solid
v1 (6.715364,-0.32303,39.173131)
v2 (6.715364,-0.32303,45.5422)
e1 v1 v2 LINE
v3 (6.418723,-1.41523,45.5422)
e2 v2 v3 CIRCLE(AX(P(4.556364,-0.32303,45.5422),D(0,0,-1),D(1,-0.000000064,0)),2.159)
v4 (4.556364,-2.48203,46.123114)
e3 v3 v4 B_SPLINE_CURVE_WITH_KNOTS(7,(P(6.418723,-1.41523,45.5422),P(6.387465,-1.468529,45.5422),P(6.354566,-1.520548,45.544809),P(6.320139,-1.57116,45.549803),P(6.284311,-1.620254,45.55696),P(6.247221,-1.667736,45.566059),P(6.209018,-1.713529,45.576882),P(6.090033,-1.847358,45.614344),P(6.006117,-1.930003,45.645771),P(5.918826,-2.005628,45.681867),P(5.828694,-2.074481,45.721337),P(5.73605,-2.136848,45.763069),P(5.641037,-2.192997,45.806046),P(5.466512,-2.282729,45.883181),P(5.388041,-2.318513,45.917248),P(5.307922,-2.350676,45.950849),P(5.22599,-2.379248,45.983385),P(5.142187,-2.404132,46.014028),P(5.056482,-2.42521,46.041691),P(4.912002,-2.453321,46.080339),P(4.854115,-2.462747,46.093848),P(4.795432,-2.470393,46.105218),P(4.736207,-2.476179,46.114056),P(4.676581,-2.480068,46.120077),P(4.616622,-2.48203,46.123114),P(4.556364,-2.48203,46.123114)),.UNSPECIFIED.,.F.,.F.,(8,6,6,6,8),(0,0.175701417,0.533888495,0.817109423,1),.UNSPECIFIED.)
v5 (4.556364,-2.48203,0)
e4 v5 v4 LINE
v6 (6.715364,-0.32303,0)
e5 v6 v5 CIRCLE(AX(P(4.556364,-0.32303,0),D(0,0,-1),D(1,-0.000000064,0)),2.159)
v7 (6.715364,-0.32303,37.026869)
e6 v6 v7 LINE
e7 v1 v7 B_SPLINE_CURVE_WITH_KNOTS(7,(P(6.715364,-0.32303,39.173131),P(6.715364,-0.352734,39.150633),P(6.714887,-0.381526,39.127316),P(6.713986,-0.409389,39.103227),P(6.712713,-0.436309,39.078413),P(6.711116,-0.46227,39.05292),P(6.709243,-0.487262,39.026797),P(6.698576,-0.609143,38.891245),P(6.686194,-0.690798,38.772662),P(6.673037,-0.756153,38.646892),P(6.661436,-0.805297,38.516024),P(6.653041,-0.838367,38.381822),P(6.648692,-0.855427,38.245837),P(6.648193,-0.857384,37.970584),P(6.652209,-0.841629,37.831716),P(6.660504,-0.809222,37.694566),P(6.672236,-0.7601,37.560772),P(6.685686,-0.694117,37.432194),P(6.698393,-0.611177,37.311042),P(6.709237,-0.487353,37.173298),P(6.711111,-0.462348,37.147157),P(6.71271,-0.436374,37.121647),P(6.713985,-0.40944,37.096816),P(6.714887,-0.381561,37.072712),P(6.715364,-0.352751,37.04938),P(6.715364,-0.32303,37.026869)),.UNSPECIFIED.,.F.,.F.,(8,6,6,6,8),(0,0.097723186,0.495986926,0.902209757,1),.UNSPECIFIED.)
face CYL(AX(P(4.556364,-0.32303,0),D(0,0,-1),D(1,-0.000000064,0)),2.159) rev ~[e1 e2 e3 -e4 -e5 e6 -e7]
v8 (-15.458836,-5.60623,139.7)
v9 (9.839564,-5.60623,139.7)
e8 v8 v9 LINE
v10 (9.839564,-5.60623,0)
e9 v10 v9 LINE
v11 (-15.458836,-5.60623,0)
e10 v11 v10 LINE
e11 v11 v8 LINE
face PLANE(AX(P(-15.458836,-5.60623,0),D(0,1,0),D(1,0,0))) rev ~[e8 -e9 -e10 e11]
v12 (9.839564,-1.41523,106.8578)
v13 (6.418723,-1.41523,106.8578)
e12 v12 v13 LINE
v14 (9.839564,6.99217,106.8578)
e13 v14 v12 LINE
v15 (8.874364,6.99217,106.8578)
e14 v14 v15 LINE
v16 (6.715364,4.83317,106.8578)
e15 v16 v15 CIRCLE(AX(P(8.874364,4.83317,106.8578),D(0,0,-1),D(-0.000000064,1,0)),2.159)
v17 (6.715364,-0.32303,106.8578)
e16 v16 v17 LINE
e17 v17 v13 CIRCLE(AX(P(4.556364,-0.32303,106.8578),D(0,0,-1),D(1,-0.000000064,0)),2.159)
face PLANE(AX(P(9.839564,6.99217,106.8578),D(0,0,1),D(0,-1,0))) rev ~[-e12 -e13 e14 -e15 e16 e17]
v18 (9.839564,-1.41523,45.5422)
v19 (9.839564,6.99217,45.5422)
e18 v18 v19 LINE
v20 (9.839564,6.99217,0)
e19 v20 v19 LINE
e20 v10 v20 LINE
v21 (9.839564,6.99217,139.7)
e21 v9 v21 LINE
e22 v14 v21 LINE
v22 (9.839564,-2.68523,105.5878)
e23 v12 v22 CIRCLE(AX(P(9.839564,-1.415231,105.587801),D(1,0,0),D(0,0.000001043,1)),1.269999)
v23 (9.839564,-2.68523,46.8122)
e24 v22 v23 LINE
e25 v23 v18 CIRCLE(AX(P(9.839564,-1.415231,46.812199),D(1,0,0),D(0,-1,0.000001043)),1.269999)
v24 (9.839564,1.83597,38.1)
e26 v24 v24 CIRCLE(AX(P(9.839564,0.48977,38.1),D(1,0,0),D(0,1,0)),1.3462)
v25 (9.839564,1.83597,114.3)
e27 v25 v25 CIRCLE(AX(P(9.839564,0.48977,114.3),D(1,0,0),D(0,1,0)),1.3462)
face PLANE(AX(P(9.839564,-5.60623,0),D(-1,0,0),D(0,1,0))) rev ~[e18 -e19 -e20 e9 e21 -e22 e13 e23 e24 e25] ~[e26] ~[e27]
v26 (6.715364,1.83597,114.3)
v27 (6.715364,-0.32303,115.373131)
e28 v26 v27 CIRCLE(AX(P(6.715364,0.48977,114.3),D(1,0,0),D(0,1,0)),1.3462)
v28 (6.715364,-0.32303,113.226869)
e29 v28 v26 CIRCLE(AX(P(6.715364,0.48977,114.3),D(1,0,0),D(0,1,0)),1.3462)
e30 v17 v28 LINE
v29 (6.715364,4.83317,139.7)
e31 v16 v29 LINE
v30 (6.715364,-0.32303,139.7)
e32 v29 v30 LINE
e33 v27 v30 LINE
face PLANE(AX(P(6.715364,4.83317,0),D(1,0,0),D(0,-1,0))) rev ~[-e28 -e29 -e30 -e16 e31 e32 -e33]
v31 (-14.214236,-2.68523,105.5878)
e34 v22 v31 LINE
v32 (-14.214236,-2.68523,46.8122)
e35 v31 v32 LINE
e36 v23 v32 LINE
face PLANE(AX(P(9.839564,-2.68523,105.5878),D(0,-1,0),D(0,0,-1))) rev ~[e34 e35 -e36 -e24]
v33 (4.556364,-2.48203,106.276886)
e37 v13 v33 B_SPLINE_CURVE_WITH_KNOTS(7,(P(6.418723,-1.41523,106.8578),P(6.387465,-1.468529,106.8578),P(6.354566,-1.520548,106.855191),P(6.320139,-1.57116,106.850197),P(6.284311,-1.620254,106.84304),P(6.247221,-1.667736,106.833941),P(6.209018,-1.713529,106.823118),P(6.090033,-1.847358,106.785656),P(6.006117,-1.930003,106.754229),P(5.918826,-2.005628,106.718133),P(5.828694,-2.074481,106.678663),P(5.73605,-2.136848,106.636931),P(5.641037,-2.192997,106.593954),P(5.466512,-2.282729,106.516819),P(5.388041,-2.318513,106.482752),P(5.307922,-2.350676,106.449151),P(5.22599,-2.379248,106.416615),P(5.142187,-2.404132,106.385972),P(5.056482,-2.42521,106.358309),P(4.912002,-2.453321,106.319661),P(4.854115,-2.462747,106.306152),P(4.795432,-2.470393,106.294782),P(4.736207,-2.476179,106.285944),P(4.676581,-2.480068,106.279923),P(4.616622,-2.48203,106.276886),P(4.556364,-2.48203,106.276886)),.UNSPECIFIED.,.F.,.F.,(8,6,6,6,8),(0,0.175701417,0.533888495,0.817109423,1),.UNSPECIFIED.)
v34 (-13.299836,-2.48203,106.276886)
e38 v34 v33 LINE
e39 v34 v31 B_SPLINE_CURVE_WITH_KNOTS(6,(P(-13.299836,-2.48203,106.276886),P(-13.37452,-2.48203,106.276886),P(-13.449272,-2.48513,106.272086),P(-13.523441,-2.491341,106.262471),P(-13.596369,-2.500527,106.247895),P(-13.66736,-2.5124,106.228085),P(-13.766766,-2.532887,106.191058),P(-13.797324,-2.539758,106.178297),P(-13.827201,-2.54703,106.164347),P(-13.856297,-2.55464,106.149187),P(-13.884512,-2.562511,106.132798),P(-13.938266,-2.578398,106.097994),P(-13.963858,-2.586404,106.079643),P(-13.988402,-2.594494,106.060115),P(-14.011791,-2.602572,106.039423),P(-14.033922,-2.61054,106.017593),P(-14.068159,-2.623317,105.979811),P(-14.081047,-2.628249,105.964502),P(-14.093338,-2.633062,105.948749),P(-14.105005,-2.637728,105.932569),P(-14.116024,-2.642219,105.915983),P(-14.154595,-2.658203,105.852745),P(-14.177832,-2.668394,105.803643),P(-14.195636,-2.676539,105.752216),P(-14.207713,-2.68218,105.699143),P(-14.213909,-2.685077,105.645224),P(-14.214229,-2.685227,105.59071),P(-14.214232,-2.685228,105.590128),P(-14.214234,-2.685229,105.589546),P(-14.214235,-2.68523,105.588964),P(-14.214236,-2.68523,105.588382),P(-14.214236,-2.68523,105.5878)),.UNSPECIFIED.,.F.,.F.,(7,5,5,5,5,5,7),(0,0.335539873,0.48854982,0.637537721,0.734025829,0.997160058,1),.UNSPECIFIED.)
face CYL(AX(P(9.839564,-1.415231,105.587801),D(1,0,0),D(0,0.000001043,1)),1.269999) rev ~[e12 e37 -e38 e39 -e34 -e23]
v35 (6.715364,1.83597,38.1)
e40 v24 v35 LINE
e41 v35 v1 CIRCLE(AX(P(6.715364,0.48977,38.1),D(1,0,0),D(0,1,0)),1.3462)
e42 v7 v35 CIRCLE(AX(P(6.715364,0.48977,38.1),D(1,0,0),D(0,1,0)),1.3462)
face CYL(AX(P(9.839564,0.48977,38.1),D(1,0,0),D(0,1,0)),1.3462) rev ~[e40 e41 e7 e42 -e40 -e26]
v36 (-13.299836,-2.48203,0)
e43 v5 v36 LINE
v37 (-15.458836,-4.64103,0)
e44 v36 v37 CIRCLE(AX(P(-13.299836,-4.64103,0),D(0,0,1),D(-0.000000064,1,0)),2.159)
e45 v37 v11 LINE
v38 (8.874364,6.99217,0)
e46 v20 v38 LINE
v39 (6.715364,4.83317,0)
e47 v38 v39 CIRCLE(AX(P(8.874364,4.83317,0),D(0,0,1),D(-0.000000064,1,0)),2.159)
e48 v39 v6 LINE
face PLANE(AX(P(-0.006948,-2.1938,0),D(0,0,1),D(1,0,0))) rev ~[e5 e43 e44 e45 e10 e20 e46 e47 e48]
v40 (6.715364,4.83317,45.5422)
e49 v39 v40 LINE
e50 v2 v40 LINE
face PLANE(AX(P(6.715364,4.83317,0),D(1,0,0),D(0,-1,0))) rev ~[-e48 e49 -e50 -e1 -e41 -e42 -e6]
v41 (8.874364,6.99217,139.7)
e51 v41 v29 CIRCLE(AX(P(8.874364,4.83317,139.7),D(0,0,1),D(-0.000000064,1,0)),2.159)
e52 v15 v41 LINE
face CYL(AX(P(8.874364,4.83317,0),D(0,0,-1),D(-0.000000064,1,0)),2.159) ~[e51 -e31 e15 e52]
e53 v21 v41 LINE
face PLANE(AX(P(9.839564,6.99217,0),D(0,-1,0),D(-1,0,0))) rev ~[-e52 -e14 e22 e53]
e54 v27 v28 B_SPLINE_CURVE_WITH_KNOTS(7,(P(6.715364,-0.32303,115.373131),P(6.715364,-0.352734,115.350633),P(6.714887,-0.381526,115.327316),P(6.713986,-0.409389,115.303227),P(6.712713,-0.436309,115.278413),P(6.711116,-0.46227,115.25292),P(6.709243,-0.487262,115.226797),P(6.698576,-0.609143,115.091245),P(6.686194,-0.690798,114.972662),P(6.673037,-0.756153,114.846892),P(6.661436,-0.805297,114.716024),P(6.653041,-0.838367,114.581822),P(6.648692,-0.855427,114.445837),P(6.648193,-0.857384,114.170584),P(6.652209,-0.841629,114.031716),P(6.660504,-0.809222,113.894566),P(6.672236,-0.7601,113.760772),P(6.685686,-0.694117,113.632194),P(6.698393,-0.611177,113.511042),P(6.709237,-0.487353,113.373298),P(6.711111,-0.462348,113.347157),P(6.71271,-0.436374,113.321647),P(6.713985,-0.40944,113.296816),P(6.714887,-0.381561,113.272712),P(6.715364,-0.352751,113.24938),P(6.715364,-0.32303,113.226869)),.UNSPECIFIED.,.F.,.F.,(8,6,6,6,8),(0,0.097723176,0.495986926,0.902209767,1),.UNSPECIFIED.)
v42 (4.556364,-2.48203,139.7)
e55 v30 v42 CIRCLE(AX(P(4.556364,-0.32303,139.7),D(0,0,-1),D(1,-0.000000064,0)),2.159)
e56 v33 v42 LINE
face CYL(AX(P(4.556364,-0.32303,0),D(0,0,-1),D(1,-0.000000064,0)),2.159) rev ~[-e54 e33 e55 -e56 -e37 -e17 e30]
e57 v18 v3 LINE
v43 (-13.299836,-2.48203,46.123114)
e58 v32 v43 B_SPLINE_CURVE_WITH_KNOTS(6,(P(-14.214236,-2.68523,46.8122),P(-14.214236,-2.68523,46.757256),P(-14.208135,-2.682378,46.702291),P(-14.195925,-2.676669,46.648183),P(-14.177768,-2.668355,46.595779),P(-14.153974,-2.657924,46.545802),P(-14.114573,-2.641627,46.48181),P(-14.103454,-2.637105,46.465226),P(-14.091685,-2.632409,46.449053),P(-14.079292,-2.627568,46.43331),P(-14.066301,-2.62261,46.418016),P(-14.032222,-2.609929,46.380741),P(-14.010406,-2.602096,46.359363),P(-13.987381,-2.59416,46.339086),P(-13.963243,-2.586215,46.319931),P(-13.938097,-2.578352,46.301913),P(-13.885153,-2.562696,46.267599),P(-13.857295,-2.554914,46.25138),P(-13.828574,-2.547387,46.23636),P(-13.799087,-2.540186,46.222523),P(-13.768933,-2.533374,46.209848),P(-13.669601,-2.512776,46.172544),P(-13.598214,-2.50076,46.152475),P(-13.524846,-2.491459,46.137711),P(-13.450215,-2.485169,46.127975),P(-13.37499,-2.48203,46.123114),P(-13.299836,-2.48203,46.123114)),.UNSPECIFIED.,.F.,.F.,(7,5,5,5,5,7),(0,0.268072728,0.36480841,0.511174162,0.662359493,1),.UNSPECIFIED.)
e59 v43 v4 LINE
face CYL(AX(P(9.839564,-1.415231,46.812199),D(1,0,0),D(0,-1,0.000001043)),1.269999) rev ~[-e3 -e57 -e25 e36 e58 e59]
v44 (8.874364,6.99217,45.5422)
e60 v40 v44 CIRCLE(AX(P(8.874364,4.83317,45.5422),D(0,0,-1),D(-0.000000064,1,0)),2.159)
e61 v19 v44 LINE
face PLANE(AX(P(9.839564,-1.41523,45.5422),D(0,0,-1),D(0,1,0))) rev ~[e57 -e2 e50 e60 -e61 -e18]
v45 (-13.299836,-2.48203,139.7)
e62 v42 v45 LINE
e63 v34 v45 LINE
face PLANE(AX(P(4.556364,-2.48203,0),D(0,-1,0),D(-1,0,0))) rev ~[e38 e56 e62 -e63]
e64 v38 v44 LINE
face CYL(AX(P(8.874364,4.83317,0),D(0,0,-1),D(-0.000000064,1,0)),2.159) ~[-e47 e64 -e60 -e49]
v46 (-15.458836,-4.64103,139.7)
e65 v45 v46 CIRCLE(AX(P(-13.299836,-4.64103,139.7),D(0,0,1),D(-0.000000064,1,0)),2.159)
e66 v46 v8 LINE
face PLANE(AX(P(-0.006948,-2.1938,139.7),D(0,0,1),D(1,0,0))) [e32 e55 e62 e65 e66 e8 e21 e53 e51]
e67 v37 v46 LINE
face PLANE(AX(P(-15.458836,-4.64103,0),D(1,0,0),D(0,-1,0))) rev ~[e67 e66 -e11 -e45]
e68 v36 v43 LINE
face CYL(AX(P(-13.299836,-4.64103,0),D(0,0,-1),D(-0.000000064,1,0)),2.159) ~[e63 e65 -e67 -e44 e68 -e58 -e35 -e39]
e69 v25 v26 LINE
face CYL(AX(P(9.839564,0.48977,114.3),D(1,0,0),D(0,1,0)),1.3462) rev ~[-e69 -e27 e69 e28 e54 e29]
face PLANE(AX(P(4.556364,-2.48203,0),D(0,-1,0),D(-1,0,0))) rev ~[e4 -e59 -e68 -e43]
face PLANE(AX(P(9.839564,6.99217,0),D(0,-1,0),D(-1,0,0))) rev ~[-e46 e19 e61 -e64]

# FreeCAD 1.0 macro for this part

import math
import FreeCAD as App
import Part
import Sketcher
Q = App.Units.Quantity

doc = App.newDocument("Part")
body = doc.addObject("PartDesign::Body", "Body")

sketch1 = body.newObject("Sketcher::SketchObject", "Sketch")
sketch1.AttachmentSupport = (doc.getObject("XY_Plane"), [""])
sketch1.MapMode = "FlatFace"
sketch1.addGeometry(Part.LineSegment(App.Vector(-15.5, -4.6, 0), App.Vector(-15.5, -5.6, 0)), False)
sketch1.addGeometry(Part.LineSegment(App.Vector(-15.5, -5.6, 0), App.Vector(9.8, -5.6, 0)), False)
sketch1.addGeometry(Part.LineSegment(App.Vector(9.8, -5.6, 0), App.Vector(9.8, 7, 0)), False)
sketch1.addGeometry(Part.LineSegment(App.Vector(9.8, 7, 0), App.Vector(8.9, 7, 0)), False)
sketch1.addGeometry(Part.ArcOfCircle(Part.Circle(App.Vector(8.9, 4.8, 0), App.Vector(0, 0, 1), 2.2), math.radians(90), math.radians(180)), False)
sketch1.addGeometry(Part.LineSegment(App.Vector(6.7, 4.8, 0), App.Vector(6.7, -0.3, 0)), False)
sketch1.addGeometry(Part.ArcOfCircle(Part.Circle(App.Vector(4.6, -0.3, 0), App.Vector(0, 0, 1), 2.2), math.radians(-90), math.radians(0)), False)
sketch1.addGeometry(Part.LineSegment(App.Vector(4.6, -2.5, 0), App.Vector(-13.3, -2.5, 0)), False)
sketch1.addGeometry(Part.ArcOfCircle(Part.Circle(App.Vector(-13.3, -4.6, 0), App.Vector(0, 0, 1), 2.2), math.radians(90), math.radians(180)), False)
sketch1.addConstraint(Sketcher.Constraint("Coincident", 0, 2, 1, 1))
sketch1.addConstraint(Sketcher.Constraint("Coincident", 1, 2, 2, 1))
sketch1.addConstraint(Sketcher.Constraint("Coincident", 2, 2, 3, 1))
sketch1.addConstraint(Sketcher.Constraint("Tangent", 3, 2, 4, 1))
sketch1.addConstraint(Sketcher.Constraint("Tangent", 4, 2, 5, 1))
sketch1.addConstraint(Sketcher.Constraint("Tangent", 5, 2, 6, 2))
sketch1.addConstraint(Sketcher.Constraint("Tangent", 6, 1, 7, 1))
sketch1.addConstraint(Sketcher.Constraint("Tangent", 7, 2, 8, 1))
sketch1.addConstraint(Sketcher.Constraint("Tangent", 8, 2, 0, 1))
sketch1.addConstraint(Sketcher.Constraint("Vertical", 0))
sketch1.addConstraint(Sketcher.Constraint("Horizontal", 1))
sketch1.addConstraint(Sketcher.Constraint("Vertical", 2))
sketch1.addConstraint(Sketcher.Constraint("Horizontal", 3))
sketch1.addConstraint(Sketcher.Constraint("Vertical", 5))
sketch1.addConstraint(Sketcher.Constraint("Horizontal", 7))
sketch1.addConstraint(Sketcher.Constraint("Equal", 4, 6))
sketch1.addConstraint(Sketcher.Constraint("Equal", 6, 8))
sketch1.addConstraint(Sketcher.Constraint("Equal", 3, 0))
sketch1.addConstraint(Sketcher.Constraint("Radius", 4, Q("0.085 in")))
sketch1.addConstraint(Sketcher.Constraint("DistanceX", 1, 1, 1, 2, Q("0.996 in")))
sketch1.addConstraint(Sketcher.Constraint("DistanceX", 3, 2, 3, 1, Q("0.038 in")))
sketch1.addConstraint(Sketcher.Constraint("DistanceY", 2, 1, 2, 2, Q("0.496 in")))
sketch1.addConstraint(Sketcher.Constraint("DistanceY", -1, 1, 4, 3, 4.83317))
sketch1.addConstraint(Sketcher.Constraint("DistanceX", -1, 1, 4, 3, 8.874364))
pad1 = body.newObject("PartDesign::Pad", "Pad")
pad1.Profile = sketch1
pad1.Length = Q("5.5 in")

sketch2 = body.newObject("Sketcher::SketchObject", "Sketch001")
sketch2.AttachmentSupport = (doc.getObject("YZ_Plane"), [""])
sketch2.MapMode = "FlatFace"
sketch2.AttachmentOffset = App.Placement(App.Vector(0, 0, 9.839564), App.Rotation())
sketch2.addGeometry(Part.Circle(App.Vector(0.5, 38.1, 0), App.Vector(0, 0, 1), 1.3), False)
sketch2.addGeometry(Part.Circle(App.Vector(0.5, 114.3, 0), App.Vector(0, 0, 1), 1.3), False)
sketch2.addConstraint(Sketcher.Constraint("Equal", 0, 1))
sketch2.addConstraint(Sketcher.Constraint("Vertical", 0, 3, 1, 3))
sketch2.addConstraint(Sketcher.Constraint("Diameter", 0, Q("0.106 in")))
sketch2.addConstraint(Sketcher.Constraint("DistanceY", 0, 3, 1, 3, Q("3 in")))
sketch2.addConstraint(Sketcher.Constraint("DistanceY", -1, 1, 0, 3, Q("1.5 in")))
sketch2.addConstraint(Sketcher.Constraint("DistanceX", -1, 1, 0, 3, 0.48977))
pocket1 = body.newObject("PartDesign::Pocket", "Pocket")
pocket1.Profile = sketch2
pocket1.Type = "ThroughAll"

sketch3 = body.newObject("Sketcher::SketchObject", "Sketch002")
sketch3.AttachmentSupport = (doc.getObject("YZ_Plane"), [""])
sketch3.MapMode = "FlatFace"
sketch3.AttachmentOffset = App.Placement(App.Vector(0, 0, 9.839564), App.Rotation())
sketch3.addGeometry(Part.LineSegment(App.Vector(-1.4, 45.5, 0), App.Vector(7, 45.5, 0)), False)
sketch3.addGeometry(Part.LineSegment(App.Vector(7, 45.5, 0), App.Vector(7, 106.9, 0)), False)
sketch3.addGeometry(Part.LineSegment(App.Vector(7, 106.9, 0), App.Vector(-1.4, 106.9, 0)), False)
sketch3.addGeometry(Part.ArcOfCircle(Part.Circle(App.Vector(-1.4, 105.6, 0), App.Vector(0, 0, 1), 1.3), math.radians(90), math.radians(180)), False)
sketch3.addGeometry(Part.LineSegment(App.Vector(-2.7, 105.6, 0), App.Vector(-2.7, 46.8, 0)), False)
sketch3.addGeometry(Part.ArcOfCircle(Part.Circle(App.Vector(-1.4, 46.8, 0), App.Vector(0, 0, 1), 1.3), math.radians(180), math.radians(270)), False)
sketch3.addConstraint(Sketcher.Constraint("Coincident", 0, 2, 1, 1))
sketch3.addConstraint(Sketcher.Constraint("Coincident", 1, 2, 2, 1))
sketch3.addConstraint(Sketcher.Constraint("Tangent", 2, 2, 3, 1))
sketch3.addConstraint(Sketcher.Constraint("Tangent", 3, 2, 4, 1))
sketch3.addConstraint(Sketcher.Constraint("Tangent", 4, 2, 5, 1))
sketch3.addConstraint(Sketcher.Constraint("Tangent", 5, 2, 0, 1))
sketch3.addConstraint(Sketcher.Constraint("Horizontal", 0))
sketch3.addConstraint(Sketcher.Constraint("Vertical", 1))
sketch3.addConstraint(Sketcher.Constraint("Horizontal", 2))
sketch3.addConstraint(Sketcher.Constraint("Vertical", 4))
sketch3.addConstraint(Sketcher.Constraint("Equal", 3, 5))
sketch3.addConstraint(Sketcher.Constraint("Radius", 3, Q("0.0499999 in")))
sketch3.addConstraint(Sketcher.Constraint("DistanceX", 0, 1, 0, 2, Q("0.331 in")))
sketch3.addConstraint(Sketcher.Constraint("DistanceY", 1, 1, 1, 2, Q("2.414 in")))
sketch3.addConstraint(Sketcher.Constraint("DistanceY", -1, 1, 3, 3, Q("4.1570001 in")))
sketch3.addConstraint(Sketcher.Constraint("DistanceX", 3, 3, -1, 1, 1.415231))
pocket2 = body.newObject("PartDesign::Pocket", "Pocket001")
pocket2.Profile = sketch3
pocket2.Type = "ThroughAll"

doc.recompute()
